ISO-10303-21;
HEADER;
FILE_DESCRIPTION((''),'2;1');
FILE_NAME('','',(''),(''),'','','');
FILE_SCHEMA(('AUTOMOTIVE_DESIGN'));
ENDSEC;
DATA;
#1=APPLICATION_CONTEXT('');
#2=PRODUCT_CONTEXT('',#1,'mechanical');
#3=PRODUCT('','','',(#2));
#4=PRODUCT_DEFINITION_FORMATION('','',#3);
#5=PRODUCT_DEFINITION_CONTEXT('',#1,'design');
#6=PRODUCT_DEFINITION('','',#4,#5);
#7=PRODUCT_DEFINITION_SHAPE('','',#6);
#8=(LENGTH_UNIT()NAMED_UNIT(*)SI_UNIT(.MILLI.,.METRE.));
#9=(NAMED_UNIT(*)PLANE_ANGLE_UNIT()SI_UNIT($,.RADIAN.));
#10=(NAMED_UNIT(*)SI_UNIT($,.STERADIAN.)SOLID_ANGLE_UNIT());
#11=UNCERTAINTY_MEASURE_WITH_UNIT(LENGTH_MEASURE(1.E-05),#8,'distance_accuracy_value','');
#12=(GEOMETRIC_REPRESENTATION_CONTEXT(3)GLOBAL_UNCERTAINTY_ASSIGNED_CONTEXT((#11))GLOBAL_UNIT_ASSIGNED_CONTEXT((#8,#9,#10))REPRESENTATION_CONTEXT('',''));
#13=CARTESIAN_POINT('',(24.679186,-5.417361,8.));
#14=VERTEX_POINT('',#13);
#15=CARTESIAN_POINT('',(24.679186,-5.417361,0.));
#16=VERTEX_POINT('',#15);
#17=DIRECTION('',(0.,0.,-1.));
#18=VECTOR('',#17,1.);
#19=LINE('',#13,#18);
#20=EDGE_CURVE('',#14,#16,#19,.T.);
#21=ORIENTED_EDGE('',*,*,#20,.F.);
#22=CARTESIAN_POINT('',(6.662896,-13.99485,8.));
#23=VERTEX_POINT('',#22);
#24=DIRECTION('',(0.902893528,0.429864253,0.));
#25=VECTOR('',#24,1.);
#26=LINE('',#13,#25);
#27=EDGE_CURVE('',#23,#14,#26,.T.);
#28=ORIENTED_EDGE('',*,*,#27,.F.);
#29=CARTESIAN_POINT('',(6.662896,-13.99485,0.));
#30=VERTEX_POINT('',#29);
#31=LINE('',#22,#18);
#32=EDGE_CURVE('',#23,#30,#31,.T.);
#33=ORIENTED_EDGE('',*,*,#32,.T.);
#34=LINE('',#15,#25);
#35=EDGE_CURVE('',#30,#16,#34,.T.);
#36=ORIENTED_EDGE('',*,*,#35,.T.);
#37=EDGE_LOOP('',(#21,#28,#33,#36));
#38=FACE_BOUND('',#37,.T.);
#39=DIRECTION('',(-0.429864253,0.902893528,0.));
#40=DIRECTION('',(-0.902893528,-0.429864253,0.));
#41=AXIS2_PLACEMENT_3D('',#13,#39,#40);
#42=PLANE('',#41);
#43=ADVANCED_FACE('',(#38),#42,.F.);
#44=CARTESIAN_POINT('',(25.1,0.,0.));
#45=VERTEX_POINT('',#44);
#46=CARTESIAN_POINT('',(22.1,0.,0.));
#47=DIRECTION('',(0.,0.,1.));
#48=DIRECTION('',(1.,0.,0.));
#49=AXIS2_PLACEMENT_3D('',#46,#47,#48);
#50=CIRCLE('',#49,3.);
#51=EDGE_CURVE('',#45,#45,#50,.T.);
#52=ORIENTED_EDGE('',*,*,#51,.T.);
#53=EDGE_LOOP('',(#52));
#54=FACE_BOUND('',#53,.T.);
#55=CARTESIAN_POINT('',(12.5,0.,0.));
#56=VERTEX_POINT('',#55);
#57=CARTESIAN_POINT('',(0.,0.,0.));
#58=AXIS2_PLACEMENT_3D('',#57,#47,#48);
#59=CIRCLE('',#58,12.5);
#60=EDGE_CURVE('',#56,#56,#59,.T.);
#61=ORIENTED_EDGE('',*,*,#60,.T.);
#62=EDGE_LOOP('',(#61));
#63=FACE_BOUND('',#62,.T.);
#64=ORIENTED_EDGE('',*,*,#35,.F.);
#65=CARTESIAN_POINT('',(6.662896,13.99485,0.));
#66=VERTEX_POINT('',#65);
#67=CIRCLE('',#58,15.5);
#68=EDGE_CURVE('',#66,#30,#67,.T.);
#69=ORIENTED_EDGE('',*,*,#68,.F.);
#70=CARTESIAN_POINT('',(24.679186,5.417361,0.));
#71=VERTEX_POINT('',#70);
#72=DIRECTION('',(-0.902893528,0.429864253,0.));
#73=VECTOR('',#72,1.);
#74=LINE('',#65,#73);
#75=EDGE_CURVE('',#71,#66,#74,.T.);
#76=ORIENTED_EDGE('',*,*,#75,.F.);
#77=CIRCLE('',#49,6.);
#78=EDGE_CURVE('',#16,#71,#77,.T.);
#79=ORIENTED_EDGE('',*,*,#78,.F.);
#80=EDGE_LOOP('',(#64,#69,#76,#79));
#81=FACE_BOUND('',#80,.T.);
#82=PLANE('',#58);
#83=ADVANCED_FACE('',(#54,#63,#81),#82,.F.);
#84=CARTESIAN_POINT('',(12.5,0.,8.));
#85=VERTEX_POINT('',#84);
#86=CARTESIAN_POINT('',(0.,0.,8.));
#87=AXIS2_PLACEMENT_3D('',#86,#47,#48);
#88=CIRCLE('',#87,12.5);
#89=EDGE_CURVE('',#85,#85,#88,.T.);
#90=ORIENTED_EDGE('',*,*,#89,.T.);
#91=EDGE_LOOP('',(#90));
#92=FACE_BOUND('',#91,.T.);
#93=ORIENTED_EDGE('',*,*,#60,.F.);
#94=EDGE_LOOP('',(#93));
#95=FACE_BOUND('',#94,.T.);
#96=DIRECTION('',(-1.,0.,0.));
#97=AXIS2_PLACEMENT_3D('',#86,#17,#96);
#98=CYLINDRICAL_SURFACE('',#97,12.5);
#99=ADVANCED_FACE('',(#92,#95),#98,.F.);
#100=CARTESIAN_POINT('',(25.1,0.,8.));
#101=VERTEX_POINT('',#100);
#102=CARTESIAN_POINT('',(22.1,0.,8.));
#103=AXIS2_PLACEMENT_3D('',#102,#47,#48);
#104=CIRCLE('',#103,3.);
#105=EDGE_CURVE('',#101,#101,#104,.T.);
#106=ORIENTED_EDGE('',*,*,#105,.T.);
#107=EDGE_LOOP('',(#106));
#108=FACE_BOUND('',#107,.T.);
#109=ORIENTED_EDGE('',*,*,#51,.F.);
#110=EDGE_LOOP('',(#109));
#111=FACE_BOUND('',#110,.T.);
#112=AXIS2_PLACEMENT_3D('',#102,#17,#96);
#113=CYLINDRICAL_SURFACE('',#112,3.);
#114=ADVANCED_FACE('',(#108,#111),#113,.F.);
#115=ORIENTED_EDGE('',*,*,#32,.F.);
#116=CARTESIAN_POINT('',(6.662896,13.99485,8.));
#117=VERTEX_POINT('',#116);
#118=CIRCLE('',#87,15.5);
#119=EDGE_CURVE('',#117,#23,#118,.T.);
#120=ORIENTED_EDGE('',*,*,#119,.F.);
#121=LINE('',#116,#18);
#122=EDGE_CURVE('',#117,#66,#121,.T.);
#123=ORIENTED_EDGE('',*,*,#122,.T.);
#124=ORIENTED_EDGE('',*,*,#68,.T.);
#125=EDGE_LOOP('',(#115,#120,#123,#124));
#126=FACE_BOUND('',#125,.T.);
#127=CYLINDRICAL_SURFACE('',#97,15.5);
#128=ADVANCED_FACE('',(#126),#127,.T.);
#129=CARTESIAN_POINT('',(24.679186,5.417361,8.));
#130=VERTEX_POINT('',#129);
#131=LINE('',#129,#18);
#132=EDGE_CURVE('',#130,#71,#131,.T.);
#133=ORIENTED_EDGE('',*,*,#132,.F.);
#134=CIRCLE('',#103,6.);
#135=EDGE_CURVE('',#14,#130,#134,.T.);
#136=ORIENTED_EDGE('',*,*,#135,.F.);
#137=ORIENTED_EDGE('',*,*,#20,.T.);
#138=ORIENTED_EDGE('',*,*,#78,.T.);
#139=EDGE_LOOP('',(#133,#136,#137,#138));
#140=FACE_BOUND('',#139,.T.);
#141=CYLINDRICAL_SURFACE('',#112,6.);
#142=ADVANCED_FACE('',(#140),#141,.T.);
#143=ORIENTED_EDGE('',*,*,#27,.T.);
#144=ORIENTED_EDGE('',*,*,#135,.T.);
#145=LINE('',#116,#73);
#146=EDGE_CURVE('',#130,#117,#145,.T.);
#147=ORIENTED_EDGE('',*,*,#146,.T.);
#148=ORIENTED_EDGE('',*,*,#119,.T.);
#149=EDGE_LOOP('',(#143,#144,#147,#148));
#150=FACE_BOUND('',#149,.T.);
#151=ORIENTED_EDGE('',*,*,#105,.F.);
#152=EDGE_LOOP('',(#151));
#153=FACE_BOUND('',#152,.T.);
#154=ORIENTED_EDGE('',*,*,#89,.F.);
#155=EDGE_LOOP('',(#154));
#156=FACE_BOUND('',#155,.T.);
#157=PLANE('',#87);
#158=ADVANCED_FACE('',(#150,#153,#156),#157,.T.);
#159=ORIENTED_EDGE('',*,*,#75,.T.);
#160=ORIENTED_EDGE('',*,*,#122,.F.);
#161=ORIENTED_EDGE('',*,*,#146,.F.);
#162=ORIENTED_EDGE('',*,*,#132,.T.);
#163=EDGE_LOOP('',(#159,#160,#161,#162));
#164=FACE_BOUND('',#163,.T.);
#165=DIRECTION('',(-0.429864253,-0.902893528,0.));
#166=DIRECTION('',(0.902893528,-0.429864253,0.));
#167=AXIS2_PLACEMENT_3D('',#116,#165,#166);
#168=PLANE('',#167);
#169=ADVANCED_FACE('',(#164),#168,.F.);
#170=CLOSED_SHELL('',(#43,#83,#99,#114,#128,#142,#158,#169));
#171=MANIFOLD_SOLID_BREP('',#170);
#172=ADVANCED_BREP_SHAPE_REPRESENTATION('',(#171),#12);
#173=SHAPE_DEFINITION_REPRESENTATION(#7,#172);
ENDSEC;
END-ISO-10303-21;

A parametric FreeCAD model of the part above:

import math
import FreeCAD as App
import Part
import Sketcher
from FreeCAD import Vector

doc = App.newDocument("Part")
body = doc.addObject("PartDesign::Body", "Body")

# Sketch on XY plane
sketch1 = body.newObject("Sketcher::SketchObject", "Sketch")
sketch1.AttachmentSupport = (doc.getObject("XY_Plane"), [""])
sketch1.MapMode = "FlatFace"
sketch1.addGeometry([
    Part.LineSegment(Vector(24.679186, 5.417361, 0), Vector(6.662896, 13.99485, 0)),  # 0
    Part.ArcOfCircle(Part.Circle(Vector(0, 0, 0), Vector(0, 0, 1), 15.5), math.radians(64.541054), math.radians(295.458946)),  # 1
    Part.LineSegment(Vector(6.662896, -13.99485, 0), Vector(24.679186, -5.417361, 0)),  # 2
    Part.ArcOfCircle(Part.Circle(Vector(22.1, 0, 0), Vector(0, 0, 1), 6), math.radians(-64.541054), math.radians(64.541054)),  # 3
    Part.Circle(Vector(22.1, 0, 0), Vector(0, 0, 1), 3),  # 4
    Part.Circle(Vector(0, 0, 0), Vector(0, 0, 1), 12.5),  # 5
], False)
sketch1.addConstraint([
    Sketcher.Constraint("Tangent", 0, 2, 1, 1),
    Sketcher.Constraint("Tangent", 1, 2, 2, 1),
    Sketcher.Constraint("Tangent", 2, 2, 3, 1),
    Sketcher.Constraint("Tangent", 3, 2, 0, 1),
    Sketcher.Constraint("Coincident", 1, 3, -1, 1),
    Sketcher.Constraint("Coincident", 5, 3, -1, 1),
    Sketcher.Constraint("Coincident", 4, 3, 3, 3),
    Sketcher.Constraint("PointOnObject", 3, 3, -1),
    Sketcher.Constraint("Diameter", 4, 6.0),
    Sketcher.Constraint("Diameter", 5, 25.0),
    Sketcher.Constraint("Radius", 3, 6.0),
    Sketcher.Constraint("Radius", 1, 15.5),
    Sketcher.Constraint("DistanceX", -1, 1, 3, 3, 22.1),
])
pad1 = body.newObject("PartDesign::Pad", "Pad")
pad1.Profile = sketch1
pad1.Length = 8

doc.recompute()
